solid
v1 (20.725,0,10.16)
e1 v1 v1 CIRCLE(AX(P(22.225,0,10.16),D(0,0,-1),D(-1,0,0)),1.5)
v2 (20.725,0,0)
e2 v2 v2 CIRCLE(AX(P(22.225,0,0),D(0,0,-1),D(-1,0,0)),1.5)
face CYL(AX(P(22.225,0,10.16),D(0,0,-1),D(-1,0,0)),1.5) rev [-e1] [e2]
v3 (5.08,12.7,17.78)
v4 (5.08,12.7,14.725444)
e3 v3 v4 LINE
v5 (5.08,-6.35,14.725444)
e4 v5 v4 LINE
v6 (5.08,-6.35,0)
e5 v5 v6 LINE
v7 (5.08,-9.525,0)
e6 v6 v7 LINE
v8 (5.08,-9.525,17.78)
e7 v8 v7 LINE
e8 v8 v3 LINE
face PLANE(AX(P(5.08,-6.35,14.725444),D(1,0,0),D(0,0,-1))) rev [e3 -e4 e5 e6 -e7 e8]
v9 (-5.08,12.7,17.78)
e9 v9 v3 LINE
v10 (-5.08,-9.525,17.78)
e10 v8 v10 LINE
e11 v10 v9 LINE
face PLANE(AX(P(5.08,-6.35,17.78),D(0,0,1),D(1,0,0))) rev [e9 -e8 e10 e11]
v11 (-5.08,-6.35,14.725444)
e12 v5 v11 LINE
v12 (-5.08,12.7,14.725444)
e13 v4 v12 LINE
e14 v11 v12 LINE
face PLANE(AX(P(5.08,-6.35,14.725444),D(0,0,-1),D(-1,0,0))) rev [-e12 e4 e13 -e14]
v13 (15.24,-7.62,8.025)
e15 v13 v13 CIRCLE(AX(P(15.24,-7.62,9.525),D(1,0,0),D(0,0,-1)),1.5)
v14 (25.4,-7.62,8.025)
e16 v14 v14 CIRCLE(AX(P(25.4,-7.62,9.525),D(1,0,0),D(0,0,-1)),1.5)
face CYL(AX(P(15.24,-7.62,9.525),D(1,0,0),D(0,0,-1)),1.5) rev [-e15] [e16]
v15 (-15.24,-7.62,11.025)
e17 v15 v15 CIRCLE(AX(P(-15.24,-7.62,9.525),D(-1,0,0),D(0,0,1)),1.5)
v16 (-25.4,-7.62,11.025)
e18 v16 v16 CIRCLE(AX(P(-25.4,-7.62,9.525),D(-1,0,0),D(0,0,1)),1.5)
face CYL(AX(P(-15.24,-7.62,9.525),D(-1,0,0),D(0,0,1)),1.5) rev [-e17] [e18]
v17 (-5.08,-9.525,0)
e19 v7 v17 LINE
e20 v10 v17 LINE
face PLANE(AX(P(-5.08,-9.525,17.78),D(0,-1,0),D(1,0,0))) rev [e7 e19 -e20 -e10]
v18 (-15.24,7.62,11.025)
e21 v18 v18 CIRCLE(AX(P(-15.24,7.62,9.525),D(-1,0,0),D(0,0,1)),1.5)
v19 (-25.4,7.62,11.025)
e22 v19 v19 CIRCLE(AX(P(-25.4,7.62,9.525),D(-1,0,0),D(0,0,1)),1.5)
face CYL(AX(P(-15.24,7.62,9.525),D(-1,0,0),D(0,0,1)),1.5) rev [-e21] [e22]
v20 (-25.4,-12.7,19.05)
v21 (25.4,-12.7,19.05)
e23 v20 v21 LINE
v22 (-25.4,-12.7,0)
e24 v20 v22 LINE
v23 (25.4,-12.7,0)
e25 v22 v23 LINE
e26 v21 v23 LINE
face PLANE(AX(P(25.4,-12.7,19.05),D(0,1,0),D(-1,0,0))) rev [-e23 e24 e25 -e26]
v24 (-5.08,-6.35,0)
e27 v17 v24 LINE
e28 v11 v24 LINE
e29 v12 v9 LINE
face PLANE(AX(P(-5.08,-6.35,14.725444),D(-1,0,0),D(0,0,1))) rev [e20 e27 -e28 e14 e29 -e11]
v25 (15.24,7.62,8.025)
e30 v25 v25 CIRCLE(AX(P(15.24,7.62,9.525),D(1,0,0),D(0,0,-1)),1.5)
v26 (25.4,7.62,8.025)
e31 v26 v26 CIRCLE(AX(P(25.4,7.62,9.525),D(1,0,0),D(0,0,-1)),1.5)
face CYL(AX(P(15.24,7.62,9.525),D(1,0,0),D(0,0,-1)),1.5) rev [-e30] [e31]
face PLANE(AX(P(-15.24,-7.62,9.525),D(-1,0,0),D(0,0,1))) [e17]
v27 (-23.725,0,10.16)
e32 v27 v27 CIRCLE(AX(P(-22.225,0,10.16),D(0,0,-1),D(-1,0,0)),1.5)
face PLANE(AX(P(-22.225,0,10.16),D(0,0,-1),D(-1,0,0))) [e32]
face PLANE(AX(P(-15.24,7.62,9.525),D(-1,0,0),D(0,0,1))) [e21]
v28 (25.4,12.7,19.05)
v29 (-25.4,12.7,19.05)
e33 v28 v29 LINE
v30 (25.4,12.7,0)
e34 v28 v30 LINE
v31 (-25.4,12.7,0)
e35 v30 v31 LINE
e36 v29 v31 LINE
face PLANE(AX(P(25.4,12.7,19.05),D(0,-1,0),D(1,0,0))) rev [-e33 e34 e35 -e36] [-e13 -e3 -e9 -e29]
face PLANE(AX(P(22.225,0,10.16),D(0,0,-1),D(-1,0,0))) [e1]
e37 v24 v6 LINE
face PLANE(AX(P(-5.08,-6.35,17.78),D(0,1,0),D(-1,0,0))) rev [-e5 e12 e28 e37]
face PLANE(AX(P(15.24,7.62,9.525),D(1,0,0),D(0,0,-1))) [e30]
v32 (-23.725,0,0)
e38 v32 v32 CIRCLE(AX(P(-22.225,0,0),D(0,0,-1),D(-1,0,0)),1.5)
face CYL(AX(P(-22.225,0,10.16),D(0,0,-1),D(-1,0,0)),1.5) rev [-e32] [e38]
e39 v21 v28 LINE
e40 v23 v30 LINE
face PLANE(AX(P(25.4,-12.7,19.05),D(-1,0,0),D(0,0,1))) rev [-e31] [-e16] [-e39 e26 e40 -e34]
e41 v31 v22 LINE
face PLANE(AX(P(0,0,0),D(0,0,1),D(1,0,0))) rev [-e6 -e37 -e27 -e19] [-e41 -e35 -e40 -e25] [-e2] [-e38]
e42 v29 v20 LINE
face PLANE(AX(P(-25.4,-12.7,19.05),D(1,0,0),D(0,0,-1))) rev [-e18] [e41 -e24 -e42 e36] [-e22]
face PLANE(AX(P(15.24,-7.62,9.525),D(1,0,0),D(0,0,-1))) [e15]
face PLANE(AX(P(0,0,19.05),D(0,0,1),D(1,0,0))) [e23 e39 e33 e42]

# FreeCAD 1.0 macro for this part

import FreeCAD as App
import Part
import Sketcher

V = App.Vector
Q = App.Units.Quantity

doc = App.newDocument("Part")
params = doc.addObject("Spreadsheet::Sheet", "Params")
for row, (alias, value) in enumerate([
    ("sketch1_width", "2 in"),
    ("sketch1_height", "1 in"),
    ("pad1_length", "0.75 in"),
    ("sketch2_width", "0.4 in"),
    ("pocket1_length", "0.75 in"),
    ("sketch3_width", "0.4 in"),
    ("sketch3_height", "0.125 in"),
    ("pocket2_length", "0.7 in"),
    ("pocket3_length", "0.4 in"),
    ("pocket4_length", "0.4 in"),
    ("pocket5_length", "0.4 in"),
], start=1):
    params.set(f"A{row}", alias)
    params.set(f"B{row}", "=" + value)
    params.setAlias(f"B{row}", alias)

body = doc.addObject("PartDesign::Body", "Body")

sketch1 = body.newObject("Sketcher::SketchObject", "Sketch")
sketch1.AttachmentSupport = (doc.getObject("XY_Plane"), [""])
sketch1.MapMode = "FlatFace"
sketch1.addGeometry(Part.LineSegment(V(-25, 13, 0), V(-25, -13, 0)), False)
sketch1.addGeometry(Part.LineSegment(V(-25, -13, 0), V(25, -13, 0)), False)
sketch1.addGeometry(Part.LineSegment(V(25, -13, 0), V(25, 13, 0)), False)
sketch1.addGeometry(Part.LineSegment(V(25, 13, 0), V(-25, 13, 0)), False)
sketch1.addConstraint(Sketcher.Constraint("Coincident", 0, 2, 1, 1))
sketch1.addConstraint(Sketcher.Constraint("Coincident", 1, 2, 2, 1))
sketch1.addConstraint(Sketcher.Constraint("Coincident", 2, 2, 3, 1))
sketch1.addConstraint(Sketcher.Constraint("Coincident", 3, 2, 0, 1))
sketch1.addConstraint(Sketcher.Constraint("Vertical", 0))
sketch1.addConstraint(Sketcher.Constraint("Horizontal", 1))
sketch1.addConstraint(Sketcher.Constraint("Vertical", 2))
sketch1.addConstraint(Sketcher.Constraint("Horizontal", 3))
sketch1.addConstraint(Sketcher.Constraint("Symmetric", 0, 2, 2, 2, -1, 1))
sketch1.addConstraint(Sketcher.Constraint("DistanceX", 1, 1, 1, 2, Q("2 in")))
sketch1.addConstraint(Sketcher.Constraint("DistanceY", 0, 2, 0, 1, Q("1 in")))
sketch1.setExpression("Constraints[9]", "Params.sketch1_width")
sketch1.setExpression("Constraints[10]", "Params.sketch1_height")
pad1 = body.newObject("PartDesign::Pad", "Pad")
pad1.Profile = sketch1
pad1.setExpression("Length", "Params.pad1_length")

sketch2 = body.newObject("Sketcher::SketchObject", "Sketch001")
sketch2.AttachmentSupport = (doc.getObject("XZ_Plane"), [""])
sketch2.MapMode = "FlatFace"
sketch2.AttachmentOffset = App.Placement(V(0, 0, -0.5 * 25.4), App.Rotation())
sketch2.addGeometry(Part.LineSegment(V(-5.1, 14.7, 0), V(-5.1, 17.8, 0)), False)
sketch2.addGeometry(Part.LineSegment(V(-5.1, 17.8, 0), V(5.1, 17.8, 0)), False)
sketch2.addGeometry(Part.LineSegment(V(5.1, 17.8, 0), V(5.1, 14.7, 0)), False)
sketch2.addGeometry(Part.LineSegment(V(5.1, 14.7, 0), V(-5.1, 14.7, 0)), False)
sketch2.addConstraint(Sketcher.Constraint("Coincident", 0, 2, 1, 1))
sketch2.addConstraint(Sketcher.Constraint("Coincident", 1, 2, 2, 1))
sketch2.addConstraint(Sketcher.Constraint("Coincident", 2, 2, 3, 1))
sketch2.addConstraint(Sketcher.Constraint("Coincident", 3, 2, 0, 1))
sketch2.addConstraint(Sketcher.Constraint("Vertical", 0))
sketch2.addConstraint(Sketcher.Constraint("Horizontal", 1))
sketch2.addConstraint(Sketcher.Constraint("Vertical", 2))
sketch2.addConstraint(Sketcher.Constraint("Horizontal", 3))
sketch2.addConstraint(Sketcher.Constraint("DistanceX", 1, 1, 1, 2, Q("0.4 in")))
sketch2.addConstraint(Sketcher.Constraint("DistanceX", 0, 2, -1, 1, Q("0.2 in")))
sketch2.addConstraint(Sketcher.Constraint("DistanceY", -1, 1, 0, 2, Q("0.7 in")))
sketch2.addConstraint(Sketcher.Constraint("DistanceY", 0, 1, 0, 2, Q("3.054556 mm")))
sketch2.setExpression("Constraints[8]", "Params.sketch2_width")
pocket1 = body.newObject("PartDesign::Pocket", "Pocket")
pocket1.Profile = sketch2
pocket1.setExpression("Length", "Params.pocket1_length")
pocket1.Reversed = True

sketch3 = body.newObject("Sketcher::SketchObject", "Sketch002")
sketch3.AttachmentSupport = (doc.getObject("XY_Plane"), [""])
sketch3.MapMode = "FlatFace"
sketch3.addGeometry(Part.LineSegment(V(5.1, -6.3, 0), V(5.1, -9.5, 0)), False)
sketch3.addGeometry(Part.LineSegment(V(5.1, -9.5, 0), V(-5.1, -9.5, 0)), False)
sketch3.addGeometry(Part.LineSegment(V(-5.1, -9.5, 0), V(-5.1, -6.3, 0)), False)
sketch3.addGeometry(Part.LineSegment(V(-5.1, -6.3, 0), V(5.1, -6.3, 0)), False)
sketch3.addConstraint(Sketcher.Constraint("Coincident", 0, 2, 1, 1))
sketch3.addConstraint(Sketcher.Constraint("Coincident", 1, 2, 2, 1))
sketch3.addConstraint(Sketcher.Constraint("Coincident", 2, 2, 3, 1))
sketch3.addConstraint(Sketcher.Constraint("Coincident", 3, 2, 0, 1))
sketch3.addConstraint(Sketcher.Constraint("Vertical", 0))
sketch3.addConstraint(Sketcher.Constraint("Horizontal", 1))
sketch3.addConstraint(Sketcher.Constraint("Vertical", 2))
sketch3.addConstraint(Sketcher.Constraint("Horizontal", 3))
sketch3.addConstraint(Sketcher.Constraint("DistanceX", 1, 2, 1, 1, Q("0.4 in")))
sketch3.addConstraint(Sketcher.Constraint("DistanceX", -1, 1, 0, 2, Q("0.2 in")))
sketch3.addConstraint(Sketcher.Constraint("DistanceY", 0, 2, 0, 1, Q("0.125 in")))
sketch3.addConstraint(Sketcher.Constraint("DistanceY", 2, 2, -1, 1, Q("0.25 in")))
sketch3.setExpression("Constraints[8]", "Params.sketch3_width")
sketch3.setExpression("Constraints[10]", "Params.sketch3_height")
pocket2 = body.newObject("PartDesign::Pocket", "Pocket001")
pocket2.Profile = sketch3
pocket2.setExpression("Length", "Params.pocket2_length")
pocket2.Reversed = True

sketch4 = body.newObject("Sketcher::SketchObject", "Sketch003")
sketch4.AttachmentSupport = (doc.getObject("YZ_Plane"), [""])
sketch4.MapMode = "FlatFace"
sketch4.AttachmentOffset = App.Placement(V(0, 0, -1 * 25.4), App.Rotation())
sketch4.addGeometry(Part.Circle(V(-7.6, 9.5, 0), V(0, 0, 1), 1.5), False)
sketch4.addGeometry(Part.Circle(V(7.6, 9.5, 0), V(0, 0, 1), 1.5), False)
sketch4.addConstraint(Sketcher.Constraint("Equal", 0, 1))
sketch4.addConstraint(Sketcher.Constraint("Symmetric", 0, 3, 1, 3, -2))
sketch4.addConstraint(Sketcher.Constraint("DistanceX", 0, 3, -1, 1, Q("0.3 in")))
sketch4.addConstraint(Sketcher.Constraint("Diameter", 0, Q("3 mm")))
sketch4.addConstraint(Sketcher.Constraint("DistanceY", -1, 1, 0, 3, Q("0.375 in")))
pocket3 = body.newObject("PartDesign::Pocket", "Pocket002")
pocket3.Profile = sketch4
pocket3.setExpression("Length", "Params.pocket3_length")
pocket3.Reversed = True

sketch5 = body.newObject("Sketcher::SketchObject", "Sketch004")
sketch5.AttachmentSupport = (doc.getObject("YZ_Plane"), [""])
sketch5.MapMode = "FlatFace"
sketch5.AttachmentOffset = App.Placement(V(0, 0, 0.6 * 25.4), App.Rotation())
sketch5.addGeometry(Part.Circle(V(7.6, 9.5, 0), V(0, 0, 1), 1.5), False)
sketch5.addGeometry(Part.Circle(V(-7.6, 9.5, 0), V(0, 0, 1), 1.5), False)
sketch5.addConstraint(Sketcher.Constraint("Equal", 0, 1))
sketch5.addConstraint(Sketcher.Constraint("Symmetric", 0, 3, 1, 3, -2))
sketch5.addConstraint(Sketcher.Constraint("DistanceX", -1, 1, 0, 3, Q("0.3 in")))
sketch5.addConstraint(Sketcher.Constraint("Diameter", 0, Q("3 mm")))
sketch5.addConstraint(Sketcher.Constraint("DistanceY", -1, 1, 0, 3, Q("0.375 in")))
pocket4 = body.newObject("PartDesign::Pocket", "Pocket003")
pocket4.Profile = sketch5
pocket4.setExpression("Length", "Params.pocket4_length")
pocket4.Reversed = True

sketch6 = body.newObject("Sketcher::SketchObject", "Sketch005")
sketch6.AttachmentSupport = (doc.getObject("XY_Plane"), [""])
sketch6.MapMode = "FlatFace"
sketch6.addGeometry(Part.Circle(V(-22.2, 0, 0), V(0, 0, 1), 1.5), False)
sketch6.addGeometry(Part.Circle(V(22.2, 0, 0), V(0, 0, 1), 1.5), False)
sketch6.addConstraint(Sketcher.Constraint("Equal", 0, 1))
sketch6.addConstraint(Sketcher.Constraint("Symmetric", 0, 3, 1, 3, -1, 1))
sketch6.addConstraint(Sketcher.Constraint("PointOnObject", 0, 3, -1))
sketch6.addConstraint(Sketcher.Constraint("Diameter", 0, Q("3 mm")))
sketch6.addConstraint(Sketcher.Constraint("DistanceX", 0, 3, 1, 3, Q("1.75 in")))
pocket5 = body.newObject("PartDesign::Pocket", "Pocket004")
pocket5.Profile = sketch6
pocket5.setExpression("Length", "Params.pocket5_length")
pocket5.Reversed = True

doc.recompute()
